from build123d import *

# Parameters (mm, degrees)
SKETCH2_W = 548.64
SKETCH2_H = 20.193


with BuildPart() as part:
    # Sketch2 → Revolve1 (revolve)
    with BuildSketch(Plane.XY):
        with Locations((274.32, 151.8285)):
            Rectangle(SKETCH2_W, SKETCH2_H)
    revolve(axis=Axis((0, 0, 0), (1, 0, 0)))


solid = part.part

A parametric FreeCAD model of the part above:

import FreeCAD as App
import Part
import Sketcher
Q = App.Units.Quantity


def add_polygon(sketch, points):
    """Adds a closed chain of lines whose ends are joined by coincident constraints."""
    first, n = sketch.GeometryCount, len(points)
    for a, b in zip(points, points[1:] + points[:1]):
        sketch.addGeometry(Part.LineSegment(App.Vector(*a, 0), App.Vector(*b, 0)), False)
    for i in range(n):
        sketch.addConstraint(Sketcher.Constraint("Coincident", first + i, 2, first + (i + 1) % n, 1))

doc = App.newDocument("Part")
params = doc.addObject("Spreadsheet::Sheet", "Params")
for row, (alias, value) in enumerate([
    ("sketch1_width", "21.6 in"),
    ("sketch1_height", "0.795 in"),
    ("revolution_angle", "360 deg"),
], start=1):
    params.set(f"A{row}", alias)
    params.set(f"B{row}", "=" + value)
    params.setAlias(f"B{row}", alias)

body = doc.addObject("PartDesign::Body", "Body")

sketch1 = body.newObject("Sketcher::SketchObject", "Sketch")
sketch1.AttachmentSupport = (doc.getObject("XY_Plane"), [""])
sketch1.MapMode = "FlatFace"
add_polygon(sketch1, [(0, 162), (0, 142), (549, 142), (549, 162)])
sketch1.addConstraint(Sketcher.Constraint("Vertical", 0))
sketch1.addConstraint(Sketcher.Constraint("Horizontal", 1))
sketch1.addConstraint(Sketcher.Constraint("Vertical", 2))
sketch1.addConstraint(Sketcher.Constraint("Horizontal", 3))
sketch1.addConstraint(Sketcher.Constraint("PointOnObject", 0, 2, -2))
sketch1.addConstraint(Sketcher.Constraint("DistanceX", 1, 1, 1, 2, Q("21.6 in")))
sketch1.addConstraint(Sketcher.Constraint("DistanceY", 0, 2, 0, 1, Q("0.795 in")))
sketch1.addConstraint(Sketcher.Constraint("DistanceY", -1, 1, 0, 2, Q("5.58 in")))
sketch1.setExpression("Constraints[9]", "Params.sketch1_width")
sketch1.setExpression("Constraints[10]", "Params.sketch1_height")
revolution = body.newObject("PartDesign::Revolution", "Revolution")
revolution.Profile = sketch1
revolution.ReferenceAxis = (sketch1, ["H_Axis"])
revolution.setExpression("Angle", "Params.revolution_angle")

doc.recompute()
